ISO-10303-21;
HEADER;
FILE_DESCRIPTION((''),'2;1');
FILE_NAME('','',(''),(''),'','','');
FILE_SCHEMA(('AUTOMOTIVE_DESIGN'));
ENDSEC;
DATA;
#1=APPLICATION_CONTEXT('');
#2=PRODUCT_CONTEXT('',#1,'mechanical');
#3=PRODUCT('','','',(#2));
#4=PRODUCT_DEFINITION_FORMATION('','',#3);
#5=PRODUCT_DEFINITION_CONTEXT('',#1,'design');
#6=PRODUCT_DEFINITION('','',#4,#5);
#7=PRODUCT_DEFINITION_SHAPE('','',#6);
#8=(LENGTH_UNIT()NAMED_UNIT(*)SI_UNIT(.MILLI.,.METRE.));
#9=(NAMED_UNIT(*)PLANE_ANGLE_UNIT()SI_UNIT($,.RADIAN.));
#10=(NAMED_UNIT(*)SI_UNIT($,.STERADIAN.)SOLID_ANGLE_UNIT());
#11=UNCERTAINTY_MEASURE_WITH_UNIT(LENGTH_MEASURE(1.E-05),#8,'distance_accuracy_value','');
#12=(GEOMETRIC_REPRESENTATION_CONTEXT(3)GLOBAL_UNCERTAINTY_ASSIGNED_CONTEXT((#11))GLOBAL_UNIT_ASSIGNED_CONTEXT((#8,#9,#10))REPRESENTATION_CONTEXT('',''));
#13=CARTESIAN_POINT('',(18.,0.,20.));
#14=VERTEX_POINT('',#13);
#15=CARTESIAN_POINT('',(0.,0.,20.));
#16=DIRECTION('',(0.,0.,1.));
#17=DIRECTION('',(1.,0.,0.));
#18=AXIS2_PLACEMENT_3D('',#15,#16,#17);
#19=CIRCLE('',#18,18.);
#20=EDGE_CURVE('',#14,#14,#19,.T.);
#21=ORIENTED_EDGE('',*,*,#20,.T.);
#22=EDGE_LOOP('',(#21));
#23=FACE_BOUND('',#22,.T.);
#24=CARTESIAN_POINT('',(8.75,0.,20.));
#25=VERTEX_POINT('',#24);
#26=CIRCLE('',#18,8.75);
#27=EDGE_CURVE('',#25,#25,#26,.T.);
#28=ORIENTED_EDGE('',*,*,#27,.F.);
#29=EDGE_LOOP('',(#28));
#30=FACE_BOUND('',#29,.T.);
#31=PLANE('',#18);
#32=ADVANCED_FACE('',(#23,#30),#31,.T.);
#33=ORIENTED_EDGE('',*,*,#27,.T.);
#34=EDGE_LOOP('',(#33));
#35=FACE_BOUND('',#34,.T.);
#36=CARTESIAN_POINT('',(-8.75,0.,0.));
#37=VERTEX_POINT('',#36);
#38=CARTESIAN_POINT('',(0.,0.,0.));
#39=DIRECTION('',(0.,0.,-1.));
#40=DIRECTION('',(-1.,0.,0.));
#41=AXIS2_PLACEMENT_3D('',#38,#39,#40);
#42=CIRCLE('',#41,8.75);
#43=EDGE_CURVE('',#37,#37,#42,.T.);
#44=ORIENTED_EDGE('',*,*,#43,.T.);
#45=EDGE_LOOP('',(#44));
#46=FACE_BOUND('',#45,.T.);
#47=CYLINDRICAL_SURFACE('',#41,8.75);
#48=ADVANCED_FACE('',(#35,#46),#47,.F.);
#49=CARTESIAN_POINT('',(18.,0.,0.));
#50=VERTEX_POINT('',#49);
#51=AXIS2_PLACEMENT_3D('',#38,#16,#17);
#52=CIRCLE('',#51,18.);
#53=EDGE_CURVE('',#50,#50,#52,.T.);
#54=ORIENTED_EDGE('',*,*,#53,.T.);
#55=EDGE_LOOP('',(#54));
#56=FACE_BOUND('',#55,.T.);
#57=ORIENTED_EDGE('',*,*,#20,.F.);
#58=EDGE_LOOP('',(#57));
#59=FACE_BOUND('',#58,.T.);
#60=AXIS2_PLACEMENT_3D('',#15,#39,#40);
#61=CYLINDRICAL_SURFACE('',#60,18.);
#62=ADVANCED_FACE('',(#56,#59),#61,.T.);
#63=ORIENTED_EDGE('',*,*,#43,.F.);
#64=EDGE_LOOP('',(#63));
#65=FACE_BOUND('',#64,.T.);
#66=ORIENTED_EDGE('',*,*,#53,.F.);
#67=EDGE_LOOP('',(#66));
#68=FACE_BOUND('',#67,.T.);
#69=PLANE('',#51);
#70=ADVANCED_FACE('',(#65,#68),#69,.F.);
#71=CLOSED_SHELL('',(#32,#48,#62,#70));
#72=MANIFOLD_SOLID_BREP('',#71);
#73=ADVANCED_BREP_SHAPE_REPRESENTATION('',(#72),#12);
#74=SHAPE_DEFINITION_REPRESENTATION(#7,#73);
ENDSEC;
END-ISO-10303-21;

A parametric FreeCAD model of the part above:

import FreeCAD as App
import Part
import Sketcher

V = App.Vector

doc = App.newDocument("Part")
body = doc.addObject("PartDesign::Body", "Body")

# Sketch on XY plane
sketch1 = body.newObject("Sketcher::SketchObject", "Sketch")
sketch1.AttachmentSupport = (doc.getObject("XY_Plane"), [""])
sketch1.MapMode = "FlatFace"
sketch1.addGeometry(Part.Circle(V(0, 0, 0), V(0, 0, 1), 18), False)
sketch1.addConstraint(Sketcher.Constraint("Coincident", 0, 3, -1, 1))
sketch1.addConstraint(Sketcher.Constraint("Diameter", 0, 36.0))
pad1 = body.newObject("PartDesign::Pad", "Pad")
pad1.Profile = sketch1
pad1.Length = 20

# Sketch on XY plane
sketch2 = body.newObject("Sketcher::SketchObject", "Sketch001")
sketch2.AttachmentSupport = (doc.getObject("XY_Plane"), [""])
sketch2.MapMode = "FlatFace"
sketch2.addGeometry(Part.Circle(V(0, 0, 0), V(0, 0, 1), 8.75), False)
sketch2.addConstraint(Sketcher.Constraint("Coincident", 0, 3, -1, 1))
sketch2.addConstraint(Sketcher.Constraint("Diameter", 0, 17.5))
doc.recompute()
hole = body.newObject("PartDesign::Hole", "Hole")
hole.Profile = sketch2
hole.ThreadType = "None"
hole.Diameter = 17.5
hole.DepthType = "Dimension"
hole.Depth = 52.5
hole.DrillPoint = "Angled"
hole.DrillPointAngle = 118
hole.Reversed = True

doc.recompute()
